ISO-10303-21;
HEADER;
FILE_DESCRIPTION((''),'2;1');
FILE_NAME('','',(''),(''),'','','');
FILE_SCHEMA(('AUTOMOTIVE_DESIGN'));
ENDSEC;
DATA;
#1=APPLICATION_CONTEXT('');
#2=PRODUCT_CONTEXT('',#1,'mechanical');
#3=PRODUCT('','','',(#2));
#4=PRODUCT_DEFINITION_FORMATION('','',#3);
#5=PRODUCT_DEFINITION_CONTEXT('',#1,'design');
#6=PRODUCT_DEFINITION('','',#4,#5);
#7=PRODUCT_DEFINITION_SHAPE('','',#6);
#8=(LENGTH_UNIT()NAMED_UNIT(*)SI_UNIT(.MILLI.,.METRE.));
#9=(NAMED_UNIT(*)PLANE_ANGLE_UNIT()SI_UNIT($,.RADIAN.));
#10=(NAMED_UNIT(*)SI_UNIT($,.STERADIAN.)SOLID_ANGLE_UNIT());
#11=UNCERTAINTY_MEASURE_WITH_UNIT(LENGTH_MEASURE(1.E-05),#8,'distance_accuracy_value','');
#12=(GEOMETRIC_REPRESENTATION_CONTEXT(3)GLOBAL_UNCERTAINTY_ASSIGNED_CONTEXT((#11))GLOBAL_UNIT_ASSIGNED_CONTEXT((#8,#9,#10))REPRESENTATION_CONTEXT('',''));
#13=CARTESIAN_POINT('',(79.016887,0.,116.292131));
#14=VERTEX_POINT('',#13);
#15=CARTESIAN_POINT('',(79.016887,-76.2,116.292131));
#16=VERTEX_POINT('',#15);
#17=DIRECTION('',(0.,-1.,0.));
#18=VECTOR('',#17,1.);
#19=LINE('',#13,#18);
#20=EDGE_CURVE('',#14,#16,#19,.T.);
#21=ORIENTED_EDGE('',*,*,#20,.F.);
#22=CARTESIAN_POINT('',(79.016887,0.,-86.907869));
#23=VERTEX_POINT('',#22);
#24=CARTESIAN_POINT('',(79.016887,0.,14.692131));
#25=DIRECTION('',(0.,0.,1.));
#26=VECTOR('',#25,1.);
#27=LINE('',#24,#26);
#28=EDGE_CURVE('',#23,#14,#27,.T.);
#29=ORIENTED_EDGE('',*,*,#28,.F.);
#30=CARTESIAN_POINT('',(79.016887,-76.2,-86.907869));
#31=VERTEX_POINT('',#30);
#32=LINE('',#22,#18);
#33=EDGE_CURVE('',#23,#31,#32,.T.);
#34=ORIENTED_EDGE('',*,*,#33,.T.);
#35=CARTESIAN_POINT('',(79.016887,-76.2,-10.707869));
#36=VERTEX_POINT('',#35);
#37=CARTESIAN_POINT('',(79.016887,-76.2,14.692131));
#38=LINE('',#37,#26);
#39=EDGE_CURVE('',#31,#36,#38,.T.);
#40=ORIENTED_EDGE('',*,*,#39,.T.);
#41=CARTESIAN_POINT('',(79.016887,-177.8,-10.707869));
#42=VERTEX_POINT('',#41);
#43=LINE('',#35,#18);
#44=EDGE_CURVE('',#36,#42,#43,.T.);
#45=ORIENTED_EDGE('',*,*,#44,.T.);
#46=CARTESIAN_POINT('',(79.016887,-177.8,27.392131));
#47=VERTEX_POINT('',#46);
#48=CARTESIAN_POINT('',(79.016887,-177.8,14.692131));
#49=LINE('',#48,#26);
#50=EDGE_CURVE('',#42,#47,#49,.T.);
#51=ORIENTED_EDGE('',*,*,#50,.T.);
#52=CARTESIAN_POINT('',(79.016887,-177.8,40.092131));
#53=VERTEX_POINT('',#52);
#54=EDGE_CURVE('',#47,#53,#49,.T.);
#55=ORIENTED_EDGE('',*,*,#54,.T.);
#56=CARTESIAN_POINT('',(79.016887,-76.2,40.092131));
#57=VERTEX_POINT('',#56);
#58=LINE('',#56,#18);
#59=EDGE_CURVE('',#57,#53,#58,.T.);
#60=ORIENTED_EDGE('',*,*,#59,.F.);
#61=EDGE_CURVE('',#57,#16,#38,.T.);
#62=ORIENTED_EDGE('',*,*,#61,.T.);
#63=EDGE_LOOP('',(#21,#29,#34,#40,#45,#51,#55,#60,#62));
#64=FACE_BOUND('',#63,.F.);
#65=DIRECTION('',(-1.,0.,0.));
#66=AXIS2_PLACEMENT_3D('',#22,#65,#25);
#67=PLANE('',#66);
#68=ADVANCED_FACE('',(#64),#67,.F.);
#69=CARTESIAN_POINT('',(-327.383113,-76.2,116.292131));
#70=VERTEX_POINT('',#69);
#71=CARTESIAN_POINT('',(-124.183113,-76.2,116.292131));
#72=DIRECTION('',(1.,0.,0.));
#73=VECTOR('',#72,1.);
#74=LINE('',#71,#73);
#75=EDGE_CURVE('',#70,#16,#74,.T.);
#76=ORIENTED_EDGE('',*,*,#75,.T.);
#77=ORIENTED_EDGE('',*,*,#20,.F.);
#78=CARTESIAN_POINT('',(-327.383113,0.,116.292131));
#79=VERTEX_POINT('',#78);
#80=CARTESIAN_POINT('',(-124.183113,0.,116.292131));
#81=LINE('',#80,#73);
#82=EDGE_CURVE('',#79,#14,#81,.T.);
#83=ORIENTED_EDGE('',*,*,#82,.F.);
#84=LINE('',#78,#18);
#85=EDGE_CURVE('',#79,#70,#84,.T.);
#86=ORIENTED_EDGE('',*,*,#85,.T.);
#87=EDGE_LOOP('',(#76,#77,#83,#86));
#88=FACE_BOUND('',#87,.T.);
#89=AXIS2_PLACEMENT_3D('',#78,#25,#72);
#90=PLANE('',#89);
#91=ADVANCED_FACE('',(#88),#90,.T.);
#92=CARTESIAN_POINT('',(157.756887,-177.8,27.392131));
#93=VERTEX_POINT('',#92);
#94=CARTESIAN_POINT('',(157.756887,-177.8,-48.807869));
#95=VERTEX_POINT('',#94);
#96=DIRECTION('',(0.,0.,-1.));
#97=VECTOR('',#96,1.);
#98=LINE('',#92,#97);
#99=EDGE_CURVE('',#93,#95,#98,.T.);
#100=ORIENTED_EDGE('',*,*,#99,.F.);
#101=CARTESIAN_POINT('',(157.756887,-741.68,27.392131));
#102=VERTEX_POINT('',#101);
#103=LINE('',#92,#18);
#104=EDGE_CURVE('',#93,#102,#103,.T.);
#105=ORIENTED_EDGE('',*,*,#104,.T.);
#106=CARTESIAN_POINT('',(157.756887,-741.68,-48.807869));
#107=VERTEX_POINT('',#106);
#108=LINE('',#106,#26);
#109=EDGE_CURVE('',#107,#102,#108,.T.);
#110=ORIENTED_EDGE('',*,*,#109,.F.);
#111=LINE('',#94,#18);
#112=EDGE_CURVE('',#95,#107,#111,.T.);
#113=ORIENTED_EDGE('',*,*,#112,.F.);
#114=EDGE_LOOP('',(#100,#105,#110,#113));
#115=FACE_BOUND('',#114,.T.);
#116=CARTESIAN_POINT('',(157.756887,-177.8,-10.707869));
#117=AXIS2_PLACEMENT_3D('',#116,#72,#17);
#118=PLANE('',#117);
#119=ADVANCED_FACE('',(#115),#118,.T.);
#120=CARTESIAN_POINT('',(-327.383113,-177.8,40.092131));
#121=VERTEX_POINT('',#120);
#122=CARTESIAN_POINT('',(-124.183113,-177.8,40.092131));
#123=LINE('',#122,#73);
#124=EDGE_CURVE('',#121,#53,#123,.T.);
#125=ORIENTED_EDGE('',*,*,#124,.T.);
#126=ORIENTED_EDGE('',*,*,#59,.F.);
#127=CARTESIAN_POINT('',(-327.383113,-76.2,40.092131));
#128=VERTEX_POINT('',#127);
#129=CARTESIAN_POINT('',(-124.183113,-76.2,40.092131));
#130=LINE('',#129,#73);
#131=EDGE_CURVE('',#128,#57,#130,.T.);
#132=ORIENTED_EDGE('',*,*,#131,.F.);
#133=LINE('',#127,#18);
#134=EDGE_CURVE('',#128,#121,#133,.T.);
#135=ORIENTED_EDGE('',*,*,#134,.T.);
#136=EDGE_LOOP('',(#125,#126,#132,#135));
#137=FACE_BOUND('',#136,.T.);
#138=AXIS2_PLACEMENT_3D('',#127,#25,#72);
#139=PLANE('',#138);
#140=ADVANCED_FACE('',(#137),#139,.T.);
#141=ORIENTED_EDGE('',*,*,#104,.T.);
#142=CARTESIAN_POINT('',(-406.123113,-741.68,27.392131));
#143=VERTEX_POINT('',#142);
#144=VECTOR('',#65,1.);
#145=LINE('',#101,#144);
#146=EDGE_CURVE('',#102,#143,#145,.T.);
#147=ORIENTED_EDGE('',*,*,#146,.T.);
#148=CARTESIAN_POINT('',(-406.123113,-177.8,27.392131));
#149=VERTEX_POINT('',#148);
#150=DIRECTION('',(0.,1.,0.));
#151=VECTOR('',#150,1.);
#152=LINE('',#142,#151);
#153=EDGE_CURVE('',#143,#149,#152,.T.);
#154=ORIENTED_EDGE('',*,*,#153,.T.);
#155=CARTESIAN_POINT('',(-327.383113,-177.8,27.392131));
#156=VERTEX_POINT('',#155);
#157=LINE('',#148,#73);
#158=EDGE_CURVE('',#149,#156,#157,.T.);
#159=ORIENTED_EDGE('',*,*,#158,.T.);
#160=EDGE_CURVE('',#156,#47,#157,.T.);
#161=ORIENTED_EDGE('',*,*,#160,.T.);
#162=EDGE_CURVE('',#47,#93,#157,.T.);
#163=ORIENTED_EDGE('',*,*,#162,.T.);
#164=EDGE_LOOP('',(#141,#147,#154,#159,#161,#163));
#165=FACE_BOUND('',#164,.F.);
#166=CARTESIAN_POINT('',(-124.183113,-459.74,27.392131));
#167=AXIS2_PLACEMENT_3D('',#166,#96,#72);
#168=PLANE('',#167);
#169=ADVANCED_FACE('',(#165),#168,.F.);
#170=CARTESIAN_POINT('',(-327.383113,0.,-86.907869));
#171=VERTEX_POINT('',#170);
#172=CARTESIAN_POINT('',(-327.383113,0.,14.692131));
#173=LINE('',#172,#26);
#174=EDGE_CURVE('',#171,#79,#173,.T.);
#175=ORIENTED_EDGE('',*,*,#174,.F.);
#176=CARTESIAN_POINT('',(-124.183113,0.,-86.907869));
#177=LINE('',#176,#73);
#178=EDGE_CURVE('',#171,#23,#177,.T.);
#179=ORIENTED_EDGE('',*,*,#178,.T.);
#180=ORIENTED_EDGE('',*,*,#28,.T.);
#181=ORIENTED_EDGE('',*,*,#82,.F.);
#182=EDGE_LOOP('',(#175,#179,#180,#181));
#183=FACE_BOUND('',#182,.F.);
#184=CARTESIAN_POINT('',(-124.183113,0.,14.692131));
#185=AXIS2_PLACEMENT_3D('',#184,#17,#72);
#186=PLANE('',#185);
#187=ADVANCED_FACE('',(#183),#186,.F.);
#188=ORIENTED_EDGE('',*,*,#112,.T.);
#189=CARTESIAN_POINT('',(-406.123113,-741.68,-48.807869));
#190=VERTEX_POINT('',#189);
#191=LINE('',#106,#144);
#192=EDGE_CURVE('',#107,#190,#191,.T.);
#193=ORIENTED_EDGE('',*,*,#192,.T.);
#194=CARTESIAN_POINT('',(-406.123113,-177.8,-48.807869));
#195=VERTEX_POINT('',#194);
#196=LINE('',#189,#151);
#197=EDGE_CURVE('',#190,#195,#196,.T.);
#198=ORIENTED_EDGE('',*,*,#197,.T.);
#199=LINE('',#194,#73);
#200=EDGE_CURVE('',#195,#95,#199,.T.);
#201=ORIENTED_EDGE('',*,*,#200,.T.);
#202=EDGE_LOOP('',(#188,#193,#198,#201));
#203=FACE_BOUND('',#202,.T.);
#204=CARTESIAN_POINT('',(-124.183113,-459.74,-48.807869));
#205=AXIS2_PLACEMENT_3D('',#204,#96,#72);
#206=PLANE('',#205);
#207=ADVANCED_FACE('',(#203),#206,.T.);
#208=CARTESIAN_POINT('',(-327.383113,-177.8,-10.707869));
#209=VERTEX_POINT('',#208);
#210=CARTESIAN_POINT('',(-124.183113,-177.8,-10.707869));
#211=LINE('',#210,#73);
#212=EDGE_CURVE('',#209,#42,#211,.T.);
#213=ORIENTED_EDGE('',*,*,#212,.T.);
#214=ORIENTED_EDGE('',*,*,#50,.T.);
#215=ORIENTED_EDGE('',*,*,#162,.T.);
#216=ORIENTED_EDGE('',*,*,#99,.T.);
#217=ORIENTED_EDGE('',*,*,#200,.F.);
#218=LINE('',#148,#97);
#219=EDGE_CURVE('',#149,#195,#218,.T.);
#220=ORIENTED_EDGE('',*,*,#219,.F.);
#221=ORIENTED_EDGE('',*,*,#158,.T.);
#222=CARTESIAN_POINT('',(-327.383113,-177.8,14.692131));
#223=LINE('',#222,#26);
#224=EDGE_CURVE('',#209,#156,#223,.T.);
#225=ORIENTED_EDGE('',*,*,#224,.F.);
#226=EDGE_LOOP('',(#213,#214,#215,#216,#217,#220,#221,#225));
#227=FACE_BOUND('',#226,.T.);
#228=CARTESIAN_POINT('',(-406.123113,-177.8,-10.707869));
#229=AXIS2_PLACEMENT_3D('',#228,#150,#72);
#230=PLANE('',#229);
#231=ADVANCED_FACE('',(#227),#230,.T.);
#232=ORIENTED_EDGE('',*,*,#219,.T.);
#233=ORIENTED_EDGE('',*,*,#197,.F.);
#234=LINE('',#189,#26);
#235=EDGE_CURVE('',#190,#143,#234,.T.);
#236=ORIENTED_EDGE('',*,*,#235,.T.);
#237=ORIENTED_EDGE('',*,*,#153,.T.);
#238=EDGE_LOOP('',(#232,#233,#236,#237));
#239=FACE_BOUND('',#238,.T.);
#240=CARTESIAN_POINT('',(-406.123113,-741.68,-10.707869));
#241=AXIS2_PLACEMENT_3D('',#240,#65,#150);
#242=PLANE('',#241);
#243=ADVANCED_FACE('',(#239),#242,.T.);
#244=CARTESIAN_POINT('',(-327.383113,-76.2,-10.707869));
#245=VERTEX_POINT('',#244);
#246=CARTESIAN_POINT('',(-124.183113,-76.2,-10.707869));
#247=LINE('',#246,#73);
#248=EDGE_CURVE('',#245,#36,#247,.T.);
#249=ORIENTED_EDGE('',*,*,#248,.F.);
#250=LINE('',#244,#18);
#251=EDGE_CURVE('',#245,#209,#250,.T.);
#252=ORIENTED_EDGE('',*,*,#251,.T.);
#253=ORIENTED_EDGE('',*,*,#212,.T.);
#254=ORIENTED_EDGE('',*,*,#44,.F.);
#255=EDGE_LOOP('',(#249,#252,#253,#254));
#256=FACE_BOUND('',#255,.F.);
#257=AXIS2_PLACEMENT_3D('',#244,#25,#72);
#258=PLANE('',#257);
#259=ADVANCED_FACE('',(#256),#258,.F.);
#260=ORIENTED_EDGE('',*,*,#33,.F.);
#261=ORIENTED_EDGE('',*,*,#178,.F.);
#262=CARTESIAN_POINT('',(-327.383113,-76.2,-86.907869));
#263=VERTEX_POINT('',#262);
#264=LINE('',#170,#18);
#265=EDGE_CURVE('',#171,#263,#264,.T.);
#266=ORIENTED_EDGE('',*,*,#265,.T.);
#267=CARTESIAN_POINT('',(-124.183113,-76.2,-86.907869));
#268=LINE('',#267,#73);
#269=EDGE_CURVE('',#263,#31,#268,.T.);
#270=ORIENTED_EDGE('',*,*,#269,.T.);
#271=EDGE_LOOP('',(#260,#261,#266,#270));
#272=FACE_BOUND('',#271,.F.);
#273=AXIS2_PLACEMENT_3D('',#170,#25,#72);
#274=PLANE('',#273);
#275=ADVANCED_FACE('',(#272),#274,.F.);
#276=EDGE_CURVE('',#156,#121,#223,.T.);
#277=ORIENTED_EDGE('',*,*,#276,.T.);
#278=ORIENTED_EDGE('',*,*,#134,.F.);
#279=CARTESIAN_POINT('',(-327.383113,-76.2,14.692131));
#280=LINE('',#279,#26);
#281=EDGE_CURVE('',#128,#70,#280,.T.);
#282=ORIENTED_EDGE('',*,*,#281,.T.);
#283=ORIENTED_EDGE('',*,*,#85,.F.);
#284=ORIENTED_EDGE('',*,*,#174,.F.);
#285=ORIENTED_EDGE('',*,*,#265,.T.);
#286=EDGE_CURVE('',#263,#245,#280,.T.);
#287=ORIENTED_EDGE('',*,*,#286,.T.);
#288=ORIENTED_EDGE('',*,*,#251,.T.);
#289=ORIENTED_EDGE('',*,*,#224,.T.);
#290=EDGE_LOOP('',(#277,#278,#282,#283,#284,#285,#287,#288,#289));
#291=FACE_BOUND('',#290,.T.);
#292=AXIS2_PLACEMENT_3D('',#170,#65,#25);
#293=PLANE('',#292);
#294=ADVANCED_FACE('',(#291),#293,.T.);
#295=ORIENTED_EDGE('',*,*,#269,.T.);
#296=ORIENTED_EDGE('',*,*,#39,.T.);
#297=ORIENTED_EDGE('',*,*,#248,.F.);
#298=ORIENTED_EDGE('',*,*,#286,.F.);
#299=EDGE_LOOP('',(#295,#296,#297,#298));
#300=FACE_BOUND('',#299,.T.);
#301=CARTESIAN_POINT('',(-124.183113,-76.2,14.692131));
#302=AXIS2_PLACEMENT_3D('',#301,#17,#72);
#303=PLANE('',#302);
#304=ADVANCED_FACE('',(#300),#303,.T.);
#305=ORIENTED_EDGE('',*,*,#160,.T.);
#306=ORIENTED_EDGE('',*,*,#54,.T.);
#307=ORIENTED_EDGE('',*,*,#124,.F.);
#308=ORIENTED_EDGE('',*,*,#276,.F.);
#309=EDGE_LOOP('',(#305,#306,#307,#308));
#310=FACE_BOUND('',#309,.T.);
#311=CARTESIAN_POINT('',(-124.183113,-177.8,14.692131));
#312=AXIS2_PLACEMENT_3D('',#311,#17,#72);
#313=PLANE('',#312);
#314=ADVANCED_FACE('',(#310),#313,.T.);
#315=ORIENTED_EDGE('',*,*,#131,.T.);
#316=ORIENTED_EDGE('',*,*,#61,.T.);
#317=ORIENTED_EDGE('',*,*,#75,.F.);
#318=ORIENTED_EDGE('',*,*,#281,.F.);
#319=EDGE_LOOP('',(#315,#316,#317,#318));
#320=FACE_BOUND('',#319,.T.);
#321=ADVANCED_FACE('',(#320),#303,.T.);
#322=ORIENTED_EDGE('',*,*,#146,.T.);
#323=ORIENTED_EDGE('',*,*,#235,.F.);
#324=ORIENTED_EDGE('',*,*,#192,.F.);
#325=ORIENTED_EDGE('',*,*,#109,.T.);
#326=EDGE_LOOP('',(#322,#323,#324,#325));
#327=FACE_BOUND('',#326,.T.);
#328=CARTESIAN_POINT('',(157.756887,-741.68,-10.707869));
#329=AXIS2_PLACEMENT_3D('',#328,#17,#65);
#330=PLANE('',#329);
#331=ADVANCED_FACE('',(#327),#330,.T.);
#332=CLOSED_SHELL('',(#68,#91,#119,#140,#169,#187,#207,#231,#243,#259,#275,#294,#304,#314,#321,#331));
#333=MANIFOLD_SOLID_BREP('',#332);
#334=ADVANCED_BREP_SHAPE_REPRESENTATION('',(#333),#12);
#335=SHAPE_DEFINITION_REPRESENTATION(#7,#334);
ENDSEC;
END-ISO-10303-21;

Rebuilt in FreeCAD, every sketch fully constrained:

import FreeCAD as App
import Part
import Sketcher
Q = App.Units.Quantity

doc = App.newDocument("Part")
params = doc.addObject("Spreadsheet::Sheet", "Params")
for row, (alias, value) in enumerate([
    ("sketch1_width", "16 in"),
    ("sketch1_height", "8 in"),
    ("pad1_length", "3 in"),
    ("sketch2_width", "16 in"),
    ("sketch2_height", "2 in"),
    ("pad2_length", "4 in"),
    ("sketch3_width", "22.2 in"),
    ("pad3_length", "3 in"),
], start=1):
    params.set(f"A{row}", alias)
    params.set(f"B{row}", "=" + value)
    params.setAlias(f"B{row}", alias)

body = doc.addObject("PartDesign::Body", "Body")

# Sketch on XZ plane
sketch1 = body.newObject("Sketcher::SketchObject", "Sketch")
sketch1.AttachmentSupport = (doc.getObject("XZ_Plane"), [""])
sketch1.MapMode = "FlatFace"
sketch1.addGeometry(Part.LineSegment(App.Vector(-327, 116, 0), App.Vector(-327, -87, 0)), False)
sketch1.addGeometry(Part.LineSegment(App.Vector(-327, -87, 0), App.Vector(79, -87, 0)), False)
sketch1.addGeometry(Part.LineSegment(App.Vector(79, -87, 0), App.Vector(79, 116, 0)), False)
sketch1.addGeometry(Part.LineSegment(App.Vector(79, 116, 0), App.Vector(-327, 116, 0)), False)
sketch1.addConstraint(Sketcher.Constraint("Coincident", 0, 2, 1, 1))
sketch1.addConstraint(Sketcher.Constraint("Coincident", 1, 2, 2, 1))
sketch1.addConstraint(Sketcher.Constraint("Coincident", 2, 2, 3, 1))
sketch1.addConstraint(Sketcher.Constraint("Coincident", 3, 2, 0, 1))
sketch1.addConstraint(Sketcher.Constraint("Vertical", 0))
sketch1.addConstraint(Sketcher.Constraint("Horizontal", 1))
sketch1.addConstraint(Sketcher.Constraint("Vertical", 2))
sketch1.addConstraint(Sketcher.Constraint("Horizontal", 3))
sketch1.addConstraint(Sketcher.Constraint("DistanceX", 1, 1, 1, 2, Q("16 in")))
sketch1.addConstraint(Sketcher.Constraint("DistanceY", 0, 2, 0, 1, Q("8 in")))
sketch1.addConstraint(Sketcher.Constraint("DistanceY", 0, 2, -1, 1, 86.907869))
sketch1.addConstraint(Sketcher.Constraint("DistanceX", 0, 2, -1, 1, 327.383113))
sketch1.setExpression("Constraints[8]", "Params.sketch1_width")
sketch1.setExpression("Constraints[9]", "Params.sketch1_height")
pad1 = body.newObject("PartDesign::Pad", "Pad")
pad1.Profile = sketch1
pad1.setExpression("Length", "Params.pad1_length")

# Sketch on XZ plane
sketch2 = body.newObject("Sketcher::SketchObject", "Sketch001")
sketch2.AttachmentSupport = (doc.getObject("XZ_Plane"), [""])
sketch2.MapMode = "FlatFace"
sketch2.AttachmentOffset = App.Placement(App.Vector(0, 0, 3 * 25.4), App.Rotation())
sketch2.addGeometry(Part.LineSegment(App.Vector(-327, 40, 0), App.Vector(-327, -11, 0)), False)
sketch2.addGeometry(Part.LineSegment(App.Vector(-327, -11, 0), App.Vector(79, -11, 0)), False)
sketch2.addGeometry(Part.LineSegment(App.Vector(79, -11, 0), App.Vector(79, 40, 0)), False)
sketch2.addGeometry(Part.LineSegment(App.Vector(79, 40, 0), App.Vector(-327, 40, 0)), False)
sketch2.addConstraint(Sketcher.Constraint("Coincident", 0, 2, 1, 1))
sketch2.addConstraint(Sketcher.Constraint("Coincident", 1, 2, 2, 1))
sketch2.addConstraint(Sketcher.Constraint("Coincident", 2, 2, 3, 1))
sketch2.addConstraint(Sketcher.Constraint("Coincident", 3, 2, 0, 1))
sketch2.addConstraint(Sketcher.Constraint("Vertical", 0))
sketch2.addConstraint(Sketcher.Constraint("Horizontal", 1))
sketch2.addConstraint(Sketcher.Constraint("Vertical", 2))
sketch2.addConstraint(Sketcher.Constraint("Horizontal", 3))
sketch2.addConstraint(Sketcher.Constraint("DistanceX", 1, 1, 1, 2, Q("16 in")))
sketch2.addConstraint(Sketcher.Constraint("DistanceY", 0, 2, 0, 1, Q("2 in")))
sketch2.addConstraint(Sketcher.Constraint("DistanceY", 0, 2, -1, 1, 10.707869))
sketch2.addConstraint(Sketcher.Constraint("DistanceX", 0, 2, -1, 1, 327.383113))
sketch2.setExpression("Constraints[8]", "Params.sketch2_width")
sketch2.setExpression("Constraints[9]", "Params.sketch2_height")
pad2 = body.newObject("PartDesign::Pad", "Pad001")
pad2.Profile = sketch2
pad2.setExpression("Length", "Params.pad2_length")

# Sketch on XY plane
sketch3 = body.newObject("Sketcher::SketchObject", "Sketch002")
sketch3.AttachmentSupport = (doc.getObject("XY_Plane"), [""])
sketch3.MapMode = "FlatFace"
sketch3.AttachmentOffset = App.Placement(App.Vector(0, 0, -10.707869), App.Rotation())
sketch3.addGeometry(Part.LineSegment(App.Vector(-406, -742, 0), App.Vector(-406, -178, 0)), False)
sketch3.addGeometry(Part.LineSegment(App.Vector(-406, -178, 0), App.Vector(158, -178, 0)), False)
sketch3.addGeometry(Part.LineSegment(App.Vector(158, -178, 0), App.Vector(158, -742, 0)), False)
sketch3.addGeometry(Part.LineSegment(App.Vector(158, -742, 0), App.Vector(-406, -742, 0)), False)
sketch3.addConstraint(Sketcher.Constraint("Coincident", 0, 2, 1, 1))
sketch3.addConstraint(Sketcher.Constraint("Coincident", 1, 2, 2, 1))
sketch3.addConstraint(Sketcher.Constraint("Coincident", 2, 2, 3, 1))
sketch3.addConstraint(Sketcher.Constraint("Coincident", 3, 2, 0, 1))
sketch3.addConstraint(Sketcher.Constraint("Vertical", 0))
sketch3.addConstraint(Sketcher.Constraint("Horizontal", 1))
sketch3.addConstraint(Sketcher.Constraint("Vertical", 2))
sketch3.addConstraint(Sketcher.Constraint("Horizontal", 3))
sketch3.addConstraint(Sketcher.Constraint("Equal", 3, 0))
sketch3.addConstraint(Sketcher.Constraint("DistanceX", 1, 1, 1, 2, Q("22.2 in")))
sketch3.addConstraint(Sketcher.Constraint("DistanceY", 0, 2, -1, 1, Q("7 in")))
sketch3.addConstraint(Sketcher.Constraint("DistanceX", 0, 2, -1, 1, 406.123113))
sketch3.setExpression("Constraints[9]", "Params.sketch3_width")
pad3 = body.newObject("PartDesign::Pad", "Pad002")
pad3.Profile = sketch3
pad3.setExpression("Length", "Params.pad3_length")
pad3.Midplane = True

doc.recompute()
